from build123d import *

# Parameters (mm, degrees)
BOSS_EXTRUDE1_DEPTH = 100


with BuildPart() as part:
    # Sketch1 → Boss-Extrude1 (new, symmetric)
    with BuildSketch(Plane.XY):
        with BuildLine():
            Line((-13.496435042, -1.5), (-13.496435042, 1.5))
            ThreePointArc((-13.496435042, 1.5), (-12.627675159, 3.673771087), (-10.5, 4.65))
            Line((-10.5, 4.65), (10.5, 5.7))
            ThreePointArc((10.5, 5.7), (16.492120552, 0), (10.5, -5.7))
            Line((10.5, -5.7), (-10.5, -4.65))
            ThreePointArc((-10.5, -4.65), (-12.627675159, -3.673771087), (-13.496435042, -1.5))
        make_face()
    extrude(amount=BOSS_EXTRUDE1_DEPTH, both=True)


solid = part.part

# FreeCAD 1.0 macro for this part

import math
import FreeCAD as App
import Part
import Sketcher

doc = App.newDocument("Part")
body = doc.addObject("PartDesign::Body", "Body")

# Sketch on XY plane
sketch1 = doc.addObject("Sketcher::SketchObject", "Sketch")
body.addObject(sketch1)
sketch1.AttachmentSupport = (doc.XY_Plane, [""])
sketch1.MapMode = "FlatFace"
sketch1.addGeometry([
    Part.LineSegment(App.Vector(-13.496435, 1.5, 0), App.Vector(-13.496435, -1.5, 0)),  # 0
    Part.ArcOfCircle(Part.Circle(App.Vector(-10.3425, -1.5, 0), App.Vector(0, 0, 1), 3.153935), math.radians(-180), math.radians(-92.862405)),  # 1
    Part.LineSegment(App.Vector(-10.5, -4.65, 0), App.Vector(10.5, -5.7, 0)),  # 2
    Part.ArcOfCircle(Part.Circle(App.Vector(10.785, 0, 0), App.Vector(0, 0, 1), 5.707121), math.radians(-92.862405), math.radians(92.862405)),  # 3
    Part.LineSegment(App.Vector(10.5, 5.7, 0), App.Vector(-10.5, 4.65, 0)),  # 4
    Part.ArcOfCircle(Part.Circle(App.Vector(-10.3425, 1.5, 0), App.Vector(0, 0, 1), 3.153935), math.radians(92.862405), math.radians(180)),  # 5
], False)
sketch1.addConstraint([
    Sketcher.Constraint("Tangent", 0, 2, 1, 1),
    Sketcher.Constraint("Tangent", 1, 2, 2, 1),
    Sketcher.Constraint("Tangent", 2, 2, 3, 1),
    Sketcher.Constraint("Tangent", 3, 2, 4, 1),
    Sketcher.Constraint("Tangent", 4, 2, 5, 1),
    Sketcher.Constraint("Tangent", 5, 2, 0, 1),
    Sketcher.Constraint("Vertical", 0),
    Sketcher.Constraint("Equal", 1, 5),
    Sketcher.Constraint("Symmetric", 2, 2, 3, 2, -1),
    Sketcher.Constraint("DistanceY", 0, 2, 0, 1, 3.0),
    Sketcher.Constraint("DistanceX", 1, 2, 2, 2, 21.0),
    Sketcher.Constraint("DistanceX", 1, 2, -1, 1, 10.5),
    Sketcher.Constraint("DistanceY", 2, 2, -1, 1, 5.7),
    Sketcher.Constraint("DistanceY", 1, 2, 4, 2, 9.3),
])
pad1 = doc.addObject("PartDesign::Pad", "Pad")
body.addObject(pad1)
pad1.Profile = sketch1
pad1.Length = 200
pad1.Midplane = True

doc.recompute()
